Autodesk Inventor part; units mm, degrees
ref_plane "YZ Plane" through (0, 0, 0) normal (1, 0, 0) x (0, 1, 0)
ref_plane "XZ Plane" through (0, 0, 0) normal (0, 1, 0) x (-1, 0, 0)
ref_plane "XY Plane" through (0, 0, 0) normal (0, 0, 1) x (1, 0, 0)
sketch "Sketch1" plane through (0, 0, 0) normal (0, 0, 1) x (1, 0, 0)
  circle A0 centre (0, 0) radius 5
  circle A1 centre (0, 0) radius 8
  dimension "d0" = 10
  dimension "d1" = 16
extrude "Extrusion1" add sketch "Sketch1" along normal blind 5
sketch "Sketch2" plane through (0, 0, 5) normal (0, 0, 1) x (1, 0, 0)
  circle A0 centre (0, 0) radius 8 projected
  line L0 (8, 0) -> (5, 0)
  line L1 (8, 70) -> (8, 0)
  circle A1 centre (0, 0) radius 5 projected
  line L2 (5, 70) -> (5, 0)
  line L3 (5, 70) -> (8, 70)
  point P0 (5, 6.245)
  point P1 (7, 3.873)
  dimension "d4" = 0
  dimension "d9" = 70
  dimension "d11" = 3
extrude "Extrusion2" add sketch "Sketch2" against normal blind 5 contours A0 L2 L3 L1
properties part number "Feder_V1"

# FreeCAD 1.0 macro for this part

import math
import FreeCAD as App
import Part
import Sketcher
Q = App.Units.Quantity

doc = App.newDocument("Part")
body = doc.addObject("PartDesign::Body", "Body")

# Sketch on XY plane
sketch1 = body.newObject("Sketcher::SketchObject", "Sketch")
sketch1.AttachmentSupport = (doc.getObject("XY_Plane"), [""])
sketch1.MapMode = "FlatFace"
sketch1.addGeometry(Part.Circle(App.Vector(0, 0, 0), App.Vector(0, 0, 1), 8), False)
sketch1.addGeometry(Part.Circle(App.Vector(0, 0, 0), App.Vector(0, 0, 1), 5), False)
sketch1.addConstraint(Sketcher.Constraint("Coincident", 0, 3, -1, 1))
sketch1.addConstraint(Sketcher.Constraint("Coincident", 1, 3, -1, 1))
sketch1.addConstraint(Sketcher.Constraint("Diameter", 0, Q("16 mm")))
sketch1.addConstraint(Sketcher.Constraint("Diameter", 1, Q("10 mm")))
pad1 = body.newObject("PartDesign::Pad", "Pad")
pad1.Profile = sketch1
pad1.Length = 5

# Sketch on XY plane
sketch2 = body.newObject("Sketcher::SketchObject", "Sketch001")
sketch2.AttachmentSupport = (doc.getObject("XY_Plane"), [""])
sketch2.MapMode = "FlatFace"
sketch2.AttachmentOffset = App.Placement(App.Vector(0, 0, 5), App.Rotation())
sketch2.addGeometry(Part.ArcOfCircle(Part.Circle(App.Vector(0, 0, 0), App.Vector(0, 0, 1), 8), math.radians(0), math.radians(51.317813)), False)
sketch2.addGeometry(Part.LineSegment(App.Vector(8, 0, 0), App.Vector(8, 70, 0)), False)
sketch2.addGeometry(Part.LineSegment(App.Vector(8, 70, 0), App.Vector(5, 70, 0)), False)
sketch2.addGeometry(Part.LineSegment(App.Vector(5, 70, 0), App.Vector(5, 6.244998, 0)), False)
sketch2.addConstraint(Sketcher.Constraint("Tangent", 0, 1, 1, 1))
sketch2.addConstraint(Sketcher.Constraint("Coincident", 1, 2, 2, 1))
sketch2.addConstraint(Sketcher.Constraint("Coincident", 2, 2, 3, 1))
sketch2.addConstraint(Sketcher.Constraint("Coincident", 3, 2, 0, 2))
sketch2.addConstraint(Sketcher.Constraint("Vertical", 1))
sketch2.addConstraint(Sketcher.Constraint("Horizontal", 2))
sketch2.addConstraint(Sketcher.Constraint("Vertical", 3))
sketch2.addConstraint(Sketcher.Constraint("Coincident", 0, 3, -1, 1))
sketch2.addConstraint(Sketcher.Constraint("DistanceX", 2, 2, 2, 1, Q("3 mm")))
sketch2.addConstraint(Sketcher.Constraint("DistanceY", 1, 1, 1, 2, Q("70 mm")))
sketch2.addConstraint(Sketcher.Constraint("Radius", 0, Q("8 mm")))
pad2 = body.newObject("PartDesign::Pad", "Pad001")
pad2.Profile = sketch2
pad2.Length = 5
pad2.Reversed = True

doc.recompute()
